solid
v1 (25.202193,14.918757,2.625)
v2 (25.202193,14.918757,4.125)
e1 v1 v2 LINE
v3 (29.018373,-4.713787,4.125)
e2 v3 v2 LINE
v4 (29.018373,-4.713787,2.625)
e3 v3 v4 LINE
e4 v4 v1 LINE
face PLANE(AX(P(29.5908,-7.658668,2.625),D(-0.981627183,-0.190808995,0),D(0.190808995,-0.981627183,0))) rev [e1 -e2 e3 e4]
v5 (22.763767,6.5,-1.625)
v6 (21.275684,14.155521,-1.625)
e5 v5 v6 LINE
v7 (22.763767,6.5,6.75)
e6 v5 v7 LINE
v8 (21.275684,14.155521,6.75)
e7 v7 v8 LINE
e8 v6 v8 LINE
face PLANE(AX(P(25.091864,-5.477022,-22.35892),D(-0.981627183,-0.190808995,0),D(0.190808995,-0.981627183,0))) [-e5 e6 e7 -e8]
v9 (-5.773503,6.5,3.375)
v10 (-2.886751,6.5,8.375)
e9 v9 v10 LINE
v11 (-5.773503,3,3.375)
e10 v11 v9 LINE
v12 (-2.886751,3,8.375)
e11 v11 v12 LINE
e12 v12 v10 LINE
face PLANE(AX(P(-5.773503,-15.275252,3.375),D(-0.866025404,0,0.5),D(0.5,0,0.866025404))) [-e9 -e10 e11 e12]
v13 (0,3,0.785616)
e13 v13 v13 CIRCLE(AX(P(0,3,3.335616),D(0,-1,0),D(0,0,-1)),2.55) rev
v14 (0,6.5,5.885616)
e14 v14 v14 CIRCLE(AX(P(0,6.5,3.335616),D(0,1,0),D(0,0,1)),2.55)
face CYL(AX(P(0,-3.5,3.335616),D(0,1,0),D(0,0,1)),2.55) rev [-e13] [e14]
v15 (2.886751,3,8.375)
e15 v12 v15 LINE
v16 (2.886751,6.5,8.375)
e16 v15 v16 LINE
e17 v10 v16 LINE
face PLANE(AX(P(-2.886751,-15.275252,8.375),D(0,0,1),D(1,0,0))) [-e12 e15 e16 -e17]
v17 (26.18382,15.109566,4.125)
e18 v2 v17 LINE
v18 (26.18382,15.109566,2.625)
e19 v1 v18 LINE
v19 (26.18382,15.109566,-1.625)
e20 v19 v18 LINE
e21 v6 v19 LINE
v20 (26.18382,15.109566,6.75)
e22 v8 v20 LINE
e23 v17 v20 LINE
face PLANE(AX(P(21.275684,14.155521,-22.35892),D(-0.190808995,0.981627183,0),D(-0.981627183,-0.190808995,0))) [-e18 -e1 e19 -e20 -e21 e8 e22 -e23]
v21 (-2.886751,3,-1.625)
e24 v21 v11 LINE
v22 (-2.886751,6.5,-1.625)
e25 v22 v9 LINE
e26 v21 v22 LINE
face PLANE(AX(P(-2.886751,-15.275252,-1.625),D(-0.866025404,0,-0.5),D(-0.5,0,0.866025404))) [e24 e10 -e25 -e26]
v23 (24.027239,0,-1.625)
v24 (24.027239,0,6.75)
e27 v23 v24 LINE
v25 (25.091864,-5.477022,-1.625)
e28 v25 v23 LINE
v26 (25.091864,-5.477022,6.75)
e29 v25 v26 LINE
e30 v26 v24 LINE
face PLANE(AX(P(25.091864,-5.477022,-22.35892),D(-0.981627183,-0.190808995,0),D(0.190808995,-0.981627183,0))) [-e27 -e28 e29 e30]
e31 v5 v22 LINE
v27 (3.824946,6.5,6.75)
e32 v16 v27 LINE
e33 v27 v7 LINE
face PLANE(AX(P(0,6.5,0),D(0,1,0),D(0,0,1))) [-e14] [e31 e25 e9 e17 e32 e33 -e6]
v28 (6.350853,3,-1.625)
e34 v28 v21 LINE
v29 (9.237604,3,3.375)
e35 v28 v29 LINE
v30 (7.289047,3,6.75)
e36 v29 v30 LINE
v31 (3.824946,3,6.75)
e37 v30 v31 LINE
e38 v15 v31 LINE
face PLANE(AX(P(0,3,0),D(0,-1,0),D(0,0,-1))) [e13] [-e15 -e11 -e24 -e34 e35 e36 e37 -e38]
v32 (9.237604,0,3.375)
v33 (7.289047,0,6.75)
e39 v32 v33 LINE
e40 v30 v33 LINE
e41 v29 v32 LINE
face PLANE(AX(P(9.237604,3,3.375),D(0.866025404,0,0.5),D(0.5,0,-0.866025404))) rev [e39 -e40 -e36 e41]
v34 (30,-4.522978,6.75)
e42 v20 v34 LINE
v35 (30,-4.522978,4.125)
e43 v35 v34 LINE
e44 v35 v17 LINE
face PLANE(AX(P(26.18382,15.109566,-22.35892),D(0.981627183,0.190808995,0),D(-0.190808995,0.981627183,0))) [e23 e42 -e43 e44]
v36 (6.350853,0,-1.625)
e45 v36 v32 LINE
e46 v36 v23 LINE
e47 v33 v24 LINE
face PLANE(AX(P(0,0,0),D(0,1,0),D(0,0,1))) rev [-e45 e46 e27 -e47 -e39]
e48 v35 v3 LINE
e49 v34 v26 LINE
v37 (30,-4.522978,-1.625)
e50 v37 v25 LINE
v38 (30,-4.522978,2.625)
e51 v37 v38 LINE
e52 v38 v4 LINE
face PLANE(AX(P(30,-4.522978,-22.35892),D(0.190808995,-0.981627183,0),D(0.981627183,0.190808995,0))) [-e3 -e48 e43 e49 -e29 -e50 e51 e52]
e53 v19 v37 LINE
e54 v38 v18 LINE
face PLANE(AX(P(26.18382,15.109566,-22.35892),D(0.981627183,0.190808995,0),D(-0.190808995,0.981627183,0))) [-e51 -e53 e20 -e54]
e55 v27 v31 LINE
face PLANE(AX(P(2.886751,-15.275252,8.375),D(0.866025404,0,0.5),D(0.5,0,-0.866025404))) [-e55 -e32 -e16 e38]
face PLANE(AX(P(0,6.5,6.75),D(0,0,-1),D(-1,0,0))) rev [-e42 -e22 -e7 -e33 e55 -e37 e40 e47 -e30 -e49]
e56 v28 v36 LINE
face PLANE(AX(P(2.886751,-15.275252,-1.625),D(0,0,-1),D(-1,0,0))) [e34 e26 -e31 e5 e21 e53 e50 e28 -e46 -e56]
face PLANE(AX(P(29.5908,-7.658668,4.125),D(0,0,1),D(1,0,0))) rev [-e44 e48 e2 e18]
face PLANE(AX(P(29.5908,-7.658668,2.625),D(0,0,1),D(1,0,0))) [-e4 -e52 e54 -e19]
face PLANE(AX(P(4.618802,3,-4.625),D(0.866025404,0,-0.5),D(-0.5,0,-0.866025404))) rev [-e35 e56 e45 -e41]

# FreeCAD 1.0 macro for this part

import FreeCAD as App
import Part
import Sketcher

V = App.Vector
Q = App.Units.Quantity


def add_polygon(sketch, points):
    """Adds a closed chain of lines whose ends are joined by coincident constraints."""
    first, n = sketch.GeometryCount, len(points)
    for a, b in zip(points, points[1:] + points[:1]):
        sketch.addGeometry(Part.LineSegment(App.Vector(*a, 0), App.Vector(*b, 0)), False)
    for i in range(n):
        sketch.addConstraint(Sketcher.Constraint("Coincident", first + i, 2, first + (i + 1) % n, 1))

doc = App.newDocument("Part")
body = doc.addObject("PartDesign::Body", "Body")

# Sketch on XZ plane
sketch1 = body.newObject("Sketcher::SketchObject", "Sketch")
sketch1.AttachmentSupport = (doc.getObject("XZ_Plane"), [""])
sketch1.MapMode = "FlatFace"
add_polygon(sketch1, [(0, 0), (0, 7), (25, 7), (25, 0)])  # lines 0-3
sketch1.addConstraint(Sketcher.Constraint("Vertical", 0))
sketch1.addConstraint(Sketcher.Constraint("Horizontal", 1))
sketch1.addConstraint(Sketcher.Constraint("Vertical", 2))
sketch1.addConstraint(Sketcher.Constraint("Horizontal", 3))
sketch1.addConstraint(Sketcher.Constraint("Coincident", 3, 2, -1, 1))
sketch1.addConstraint(Sketcher.Constraint("DistanceX", 1, 1, 1, 2, Q("25 mm")))
sketch1.addConstraint(Sketcher.Constraint("DistanceY", 0, 1, 0, 2, Q("6.75 mm")))
pad1 = body.newObject("PartDesign::Pad", "Pad")
pad1.Profile = sketch1
pad1.Length = 6.5
pad1.Reversed = True

# Sketch on XY plane
sketch2 = body.newObject("Sketcher::SketchObject", "Sketch001")
sketch2.AttachmentSupport = (doc.getObject("XY_Plane"), [""])
sketch2.MapMode = "FlatFace"
sketch2.AttachmentOffset = App.Placement(V(0, 0, 3.375), App.Rotation())
add_polygon(sketch2, [(26.2, 15.1), (21.3, 14.2), (25.1, -5.5), (30, -4.5)])  # lines 0-3
sketch2.addConstraint(Sketcher.Constraint("Perpendicular", 0, 1))
sketch2.addConstraint(Sketcher.Constraint("Perpendicular", 1, 2))
sketch2.addConstraint(Sketcher.Constraint("Perpendicular", 2, 3))
sketch2.addConstraint(Sketcher.Constraint("Angle", 0, Q("-169 deg")))
sketch2.addConstraint(Sketcher.Constraint("Distance", 0, Q("5 mm")))
sketch2.addConstraint(Sketcher.Constraint("Distance", 1, Q("20 mm")))
sketch2.addConstraint(Sketcher.Constraint("DistanceX", -1, 1, 2, 2, Q("30 mm")))
sketch2.addConstraint(Sketcher.Constraint("DistanceY", -1, 1, 0, 2, Q("14.155521 mm")))
pad2 = body.newObject("PartDesign::Pad", "Pad001")
pad2.Profile = sketch2
pad2.Type = "TwoLengths"
pad2.Length = 3.375
pad2.Length2 = 5

# Sketch on an angled plane
sketch3 = body.newObject("Sketcher::SketchObject", "Sketch002")
sketch3.Placement = App.Placement(V(-1.876769, 9.65514, 0), App.Rotation(V(0.981627184, 0.190808995, 0), V(0, 0, -1.000000001), V(-0.190808995, 0.981627184, 0), "ZXY"))
add_polygon(sketch3, [(27.6, -2.6), (27.6, -4.1), (28.6, -4.1), (28.6, -2.6)])  # lines 0-3
sketch3.addConstraint(Sketcher.Constraint("Vertical", 0))
sketch3.addConstraint(Sketcher.Constraint("Horizontal", 1))
sketch3.addConstraint(Sketcher.Constraint("Vertical", 2))
sketch3.addConstraint(Sketcher.Constraint("Horizontal", 3))
sketch3.addConstraint(Sketcher.Constraint("DistanceX", 1, 1, 1, 2, Q("1 mm")))
sketch3.addConstraint(Sketcher.Constraint("DistanceY", 0, 2, 0, 1, Q("1.5 mm")))
sketch3.addConstraint(Sketcher.Constraint("DistanceY", 0, 2, -1, 1, Q("4.125 mm")))
sketch3.addConstraint(Sketcher.Constraint("DistanceX", -1, 1, 0, 2, Q("27.585791 mm")))
pocket1 = body.newObject("PartDesign::Pocket", "Pocket")
pocket1.Profile = sketch3
pocket1.Length = 23

# Sketch on XZ plane
sketch4 = body.newObject("Sketcher::SketchObject", "Sketch003")
sketch4.AttachmentSupport = (doc.getObject("XZ_Plane"), [""])
sketch4.MapMode = "FlatFace"
sketch4.AttachmentOffset = App.Placement(V(0, 0, -6.5), App.Rotation())
add_polygon(sketch4, [(-6, 3), (-3, 8), (3, 8), (6, 3), (3, -2), (-3, -2)])  # lines 0-5
sketch4.addConstraint(Sketcher.Constraint("Horizontal", 1))
sketch4.addConstraint(Sketcher.Constraint("Horizontal", 4))
sketch4.addConstraint(Sketcher.Constraint("Symmetric", 2, 2, 5, 2, -2))
sketch4.addConstraint(Sketcher.Constraint("Parallel", 0, 3))
sketch4.addConstraint(Sketcher.Constraint("Parallel", 2, 5))
sketch4.addConstraint(Sketcher.Constraint("Vertical", 1, 2, 3, 2))
sketch4.addConstraint(Sketcher.Constraint("Vertical", 0, 2, 4, 2))
sketch4.addConstraint(Sketcher.Constraint("Angle", 0, Q("60 deg")))
sketch4.addConstraint(Sketcher.Constraint("DistanceY", 2, 2, 1, 2, Q("5 mm")))
sketch4.addConstraint(Sketcher.Constraint("DistanceY", -1, 1, 0, 2, Q("8.375 mm")))
sketch4.addConstraint(Sketcher.Constraint("DistanceX", 1, 1, 1, 2, Q("5.773503 mm")))
pad3 = body.newObject("PartDesign::Pad", "Pad002")
pad3.Profile = sketch4
pad3.Length = 6.5

# Sketch on XZ plane
sketch5 = body.newObject("Sketcher::SketchObject", "Sketch004")
sketch5.AttachmentSupport = (doc.getObject("XZ_Plane"), [""])
sketch5.MapMode = "FlatFace"
sketch5.AttachmentOffset = App.Placement(V(0, 0, -6.5), App.Rotation())
sketch5.addGeometry(Part.Circle(V(0, 3.3, 0), V(0, 0, 1), 2.5), False)
sketch5.addConstraint(Sketcher.Constraint("PointOnObject", 0, 3, -2))
sketch5.addConstraint(Sketcher.Constraint("Diameter", 0, Q("5.1 mm")))
sketch5.addConstraint(Sketcher.Constraint("DistanceY", -1, 1, 0, 3, Q("3.335616 mm")))
pocket2 = body.newObject("PartDesign::Pocket", "Pocket001")
pocket2.Profile = sketch5
pocket2.Length = 10
pocket2.Reversed = True

# Sketch on XY plane
sketch6 = body.newObject("Sketcher::SketchObject", "Sketch005")
sketch6.AttachmentSupport = (doc.getObject("XY_Plane"), [""])
sketch6.MapMode = "FlatFace"
sketch6.AttachmentOffset = App.Placement(V(0, 0, -1.625), App.Rotation())
add_polygon(sketch6, [(24, 0), (2.9, 0), (2.9, 6.5), (22.8, 6.5), (21.3, 14.2), (26.2, 15.1), (30, -4.5), (25.1, -5.5)])  # lines 0-7
sketch6.addConstraint(Sketcher.Constraint("Horizontal", 0))
sketch6.addConstraint(Sketcher.Constraint("Vertical", 1))
sketch6.addConstraint(Sketcher.Constraint("Horizontal", 2))
sketch6.addConstraint(Sketcher.Constraint("PointOnObject", 0, 2, -1))
sketch6.addConstraint(Sketcher.Constraint("Perpendicular", 3, 4))
sketch6.addConstraint(Sketcher.Constraint("Perpendicular", 4, 5))
sketch6.addConstraint(Sketcher.Constraint("Perpendicular", 5, 6))
sketch6.addConstraint(Sketcher.Constraint("Perpendicular", 6, 7))
sketch6.addConstraint(Sketcher.Constraint("Equal", 4, 6))
sketch6.addConstraint(Sketcher.Constraint("Angle", 3, Q("101 deg")))
sketch6.addConstraint(Sketcher.Constraint("Distance", 4, Q("5 mm")))
sketch6.addConstraint(Sketcher.Constraint("Distance", 5, Q("20 mm")))
sketch6.addConstraint(Sketcher.Constraint("DistanceY", 1, 1, 1, 2, Q("6.5 mm")))
sketch6.addConstraint(Sketcher.Constraint("DistanceX", -1, 1, 5, 2, Q("30 mm")))
sketch6.addConstraint(Sketcher.Constraint("DistanceX", 0, 2, 0, 1, Q("21.140487 mm")))
sketch6.addConstraint(Sketcher.Constraint("DistanceX", -1, 1, 0, 2, Q("2.886751 mm")))
pad4 = body.newObject("PartDesign::Pad", "Pad003")
pad4.Profile = sketch6
pad4.Type = "UpToFirst"

# Sketch on XZ plane
sketch7 = body.newObject("Sketcher::SketchObject", "Sketch006")
sketch7.AttachmentSupport = (doc.getObject("XZ_Plane"), [""])
sketch7.MapMode = "FlatFace"
add_polygon(sketch7, [(5, 11), (-5, 11), (-9, 3), (-5, -5), (5, -5), (9, 3)])  # lines 0-5
sketch7.addConstraint(Sketcher.Constraint("Horizontal", 0))
sketch7.addConstraint(Sketcher.Constraint("Horizontal", 3))
sketch7.addConstraint(Sketcher.Constraint("Symmetric", 1, 2, 4, 2, -2))
sketch7.addConstraint(Sketcher.Constraint("Parallel", 1, 4))
sketch7.addConstraint(Sketcher.Constraint("Parallel", 2, 5))
sketch7.addConstraint(Sketcher.Constraint("Vertical", 0, 2, 2, 2))
sketch7.addConstraint(Sketcher.Constraint("Vertical", 3, 2, 5, 2))
sketch7.addConstraint(Sketcher.Constraint("Angle", 1, Q("-120 deg")))
sketch7.addConstraint(Sketcher.Constraint("DistanceY", 1, 2, 0, 2, Q("8 mm")))
sketch7.addConstraint(Sketcher.Constraint("DistanceY", -1, 1, 0, 2, Q("11.375 mm")))
sketch7.addConstraint(Sketcher.Constraint("DistanceX", 0, 2, 0, 1, Q("9.237604 mm")))
pocket3 = body.newObject("PartDesign::Pocket", "Pocket002")
pocket3.Profile = sketch7
pocket3.Length = 3

doc.recompute()
